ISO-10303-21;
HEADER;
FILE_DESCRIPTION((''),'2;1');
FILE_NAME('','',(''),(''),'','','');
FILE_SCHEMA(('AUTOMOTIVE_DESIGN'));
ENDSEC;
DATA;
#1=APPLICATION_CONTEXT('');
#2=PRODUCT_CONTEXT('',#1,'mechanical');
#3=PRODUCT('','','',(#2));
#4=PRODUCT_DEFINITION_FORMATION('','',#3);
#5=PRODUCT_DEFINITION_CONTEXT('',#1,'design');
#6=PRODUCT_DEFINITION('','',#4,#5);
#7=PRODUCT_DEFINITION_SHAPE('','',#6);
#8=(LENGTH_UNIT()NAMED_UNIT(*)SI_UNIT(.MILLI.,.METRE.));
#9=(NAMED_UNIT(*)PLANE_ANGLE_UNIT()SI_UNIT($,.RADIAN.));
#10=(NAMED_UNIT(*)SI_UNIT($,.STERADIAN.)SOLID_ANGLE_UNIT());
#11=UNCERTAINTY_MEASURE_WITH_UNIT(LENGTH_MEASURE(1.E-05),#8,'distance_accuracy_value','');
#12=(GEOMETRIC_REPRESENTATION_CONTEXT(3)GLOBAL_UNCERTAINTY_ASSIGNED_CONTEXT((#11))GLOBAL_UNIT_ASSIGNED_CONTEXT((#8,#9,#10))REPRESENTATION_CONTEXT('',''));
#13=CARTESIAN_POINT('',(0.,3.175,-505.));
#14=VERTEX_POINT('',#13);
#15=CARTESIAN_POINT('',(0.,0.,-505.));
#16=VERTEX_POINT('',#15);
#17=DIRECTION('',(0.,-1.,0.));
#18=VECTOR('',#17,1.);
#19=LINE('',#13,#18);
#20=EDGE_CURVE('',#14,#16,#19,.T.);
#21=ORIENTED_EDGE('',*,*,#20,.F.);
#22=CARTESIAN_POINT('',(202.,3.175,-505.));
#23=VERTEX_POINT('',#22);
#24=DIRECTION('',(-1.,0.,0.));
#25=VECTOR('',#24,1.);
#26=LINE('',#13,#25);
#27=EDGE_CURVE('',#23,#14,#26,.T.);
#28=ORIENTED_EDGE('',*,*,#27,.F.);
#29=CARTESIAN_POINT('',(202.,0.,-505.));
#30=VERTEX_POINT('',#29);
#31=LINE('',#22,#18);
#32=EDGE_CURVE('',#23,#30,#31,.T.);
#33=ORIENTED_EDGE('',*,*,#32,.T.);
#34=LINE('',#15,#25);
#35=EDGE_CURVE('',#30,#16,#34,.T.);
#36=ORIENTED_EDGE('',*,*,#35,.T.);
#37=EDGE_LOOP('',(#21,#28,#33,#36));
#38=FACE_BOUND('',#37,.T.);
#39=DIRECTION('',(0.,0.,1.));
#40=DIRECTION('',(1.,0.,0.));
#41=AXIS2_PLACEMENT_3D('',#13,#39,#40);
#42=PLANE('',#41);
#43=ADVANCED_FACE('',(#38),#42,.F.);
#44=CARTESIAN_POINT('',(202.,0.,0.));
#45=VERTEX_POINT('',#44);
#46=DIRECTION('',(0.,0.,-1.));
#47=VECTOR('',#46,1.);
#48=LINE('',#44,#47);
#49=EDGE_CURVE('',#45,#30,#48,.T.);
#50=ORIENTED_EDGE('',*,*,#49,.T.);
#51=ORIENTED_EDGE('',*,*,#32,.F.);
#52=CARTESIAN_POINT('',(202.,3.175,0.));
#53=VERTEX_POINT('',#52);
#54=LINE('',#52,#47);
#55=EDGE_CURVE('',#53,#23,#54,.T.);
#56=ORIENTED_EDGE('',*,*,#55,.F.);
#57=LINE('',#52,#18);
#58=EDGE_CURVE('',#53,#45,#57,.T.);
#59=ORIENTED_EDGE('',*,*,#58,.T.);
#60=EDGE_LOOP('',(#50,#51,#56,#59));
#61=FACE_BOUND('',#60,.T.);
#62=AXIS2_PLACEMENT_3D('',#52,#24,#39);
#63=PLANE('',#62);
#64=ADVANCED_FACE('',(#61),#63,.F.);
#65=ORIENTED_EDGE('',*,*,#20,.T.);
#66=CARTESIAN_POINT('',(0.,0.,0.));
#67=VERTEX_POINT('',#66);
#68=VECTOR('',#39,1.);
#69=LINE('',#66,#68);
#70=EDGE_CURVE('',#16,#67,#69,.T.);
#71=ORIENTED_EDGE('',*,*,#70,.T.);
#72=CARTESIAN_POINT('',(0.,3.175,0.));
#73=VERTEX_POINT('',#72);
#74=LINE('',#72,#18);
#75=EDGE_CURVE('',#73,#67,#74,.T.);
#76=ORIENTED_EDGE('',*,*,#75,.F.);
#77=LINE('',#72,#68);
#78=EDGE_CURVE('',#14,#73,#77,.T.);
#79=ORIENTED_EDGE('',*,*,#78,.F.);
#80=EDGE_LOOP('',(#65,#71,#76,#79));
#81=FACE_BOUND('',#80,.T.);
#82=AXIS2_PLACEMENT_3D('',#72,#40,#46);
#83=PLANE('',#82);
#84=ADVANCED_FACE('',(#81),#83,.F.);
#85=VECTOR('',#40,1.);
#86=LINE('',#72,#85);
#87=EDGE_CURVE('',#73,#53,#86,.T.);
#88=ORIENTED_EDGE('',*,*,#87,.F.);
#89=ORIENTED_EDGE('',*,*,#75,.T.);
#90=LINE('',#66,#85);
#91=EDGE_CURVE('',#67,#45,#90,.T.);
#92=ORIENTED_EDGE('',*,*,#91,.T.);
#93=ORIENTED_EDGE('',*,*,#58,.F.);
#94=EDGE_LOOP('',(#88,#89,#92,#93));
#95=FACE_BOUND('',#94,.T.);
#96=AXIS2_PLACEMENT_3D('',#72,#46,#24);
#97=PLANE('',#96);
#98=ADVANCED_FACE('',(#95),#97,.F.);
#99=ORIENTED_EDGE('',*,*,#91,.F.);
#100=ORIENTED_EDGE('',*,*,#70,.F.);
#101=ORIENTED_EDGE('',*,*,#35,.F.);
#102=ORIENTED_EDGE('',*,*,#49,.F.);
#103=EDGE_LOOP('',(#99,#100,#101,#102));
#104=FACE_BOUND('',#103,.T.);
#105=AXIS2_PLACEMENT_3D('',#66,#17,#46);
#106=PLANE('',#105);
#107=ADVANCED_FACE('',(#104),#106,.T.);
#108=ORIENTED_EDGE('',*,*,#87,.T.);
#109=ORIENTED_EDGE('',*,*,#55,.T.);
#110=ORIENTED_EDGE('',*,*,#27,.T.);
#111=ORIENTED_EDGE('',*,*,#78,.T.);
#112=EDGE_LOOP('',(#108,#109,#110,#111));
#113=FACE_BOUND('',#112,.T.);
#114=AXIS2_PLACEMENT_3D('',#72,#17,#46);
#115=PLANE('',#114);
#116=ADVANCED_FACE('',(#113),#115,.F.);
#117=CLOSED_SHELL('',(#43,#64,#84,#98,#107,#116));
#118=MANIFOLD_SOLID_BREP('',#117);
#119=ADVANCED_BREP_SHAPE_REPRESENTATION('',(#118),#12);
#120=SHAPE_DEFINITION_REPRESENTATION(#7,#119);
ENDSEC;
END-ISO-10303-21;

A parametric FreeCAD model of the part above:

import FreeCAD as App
import Part
import Sketcher
Q = App.Units.Quantity

doc = App.newDocument("Part")
body = doc.addObject("PartDesign::Body", "Body")

# Sketch on XZ plane
sketch1 = body.newObject("Sketcher::SketchObject", "Sketch")
sketch1.AttachmentSupport = (doc.getObject("XZ_Plane"), [""])
sketch1.MapMode = "FlatFace"
sketch1.addGeometry([
    Part.LineSegment(App.Vector(0, -505, 0), App.Vector(0, 0, 0)),
    Part.LineSegment(App.Vector(0, 0, 0), App.Vector(202, 0, 0)),
    Part.LineSegment(App.Vector(202, 0, 0), App.Vector(202, -505, 0)),
    Part.LineSegment(App.Vector(202, -505, 0), App.Vector(0, -505, 0)),
], False)
sketch1.addConstraint([
    Sketcher.Constraint("Coincident", 0, 2, 1, 1),
    Sketcher.Constraint("Coincident", 1, 2, 2, 1),
    Sketcher.Constraint("Coincident", 2, 2, 3, 1),
    Sketcher.Constraint("Coincident", 3, 2, 0, 1),
    Sketcher.Constraint("Vertical", 0),
    Sketcher.Constraint("Horizontal", 1),
    Sketcher.Constraint("Vertical", 2),
    Sketcher.Constraint("Horizontal", 3),
    Sketcher.Constraint("Coincident", 0, 2, -1, 1),
    Sketcher.Constraint("DistanceX", 1, 1, 1, 2, Q("202 mm")),
    Sketcher.Constraint("DistanceY", 0, 1, 0, 2, Q("505 mm")),
])
pad1 = body.newObject("PartDesign::Pad", "Pad")
pad1.Profile = sketch1
pad1.Length = 3.175
pad1.Reversed = True

doc.recompute()
